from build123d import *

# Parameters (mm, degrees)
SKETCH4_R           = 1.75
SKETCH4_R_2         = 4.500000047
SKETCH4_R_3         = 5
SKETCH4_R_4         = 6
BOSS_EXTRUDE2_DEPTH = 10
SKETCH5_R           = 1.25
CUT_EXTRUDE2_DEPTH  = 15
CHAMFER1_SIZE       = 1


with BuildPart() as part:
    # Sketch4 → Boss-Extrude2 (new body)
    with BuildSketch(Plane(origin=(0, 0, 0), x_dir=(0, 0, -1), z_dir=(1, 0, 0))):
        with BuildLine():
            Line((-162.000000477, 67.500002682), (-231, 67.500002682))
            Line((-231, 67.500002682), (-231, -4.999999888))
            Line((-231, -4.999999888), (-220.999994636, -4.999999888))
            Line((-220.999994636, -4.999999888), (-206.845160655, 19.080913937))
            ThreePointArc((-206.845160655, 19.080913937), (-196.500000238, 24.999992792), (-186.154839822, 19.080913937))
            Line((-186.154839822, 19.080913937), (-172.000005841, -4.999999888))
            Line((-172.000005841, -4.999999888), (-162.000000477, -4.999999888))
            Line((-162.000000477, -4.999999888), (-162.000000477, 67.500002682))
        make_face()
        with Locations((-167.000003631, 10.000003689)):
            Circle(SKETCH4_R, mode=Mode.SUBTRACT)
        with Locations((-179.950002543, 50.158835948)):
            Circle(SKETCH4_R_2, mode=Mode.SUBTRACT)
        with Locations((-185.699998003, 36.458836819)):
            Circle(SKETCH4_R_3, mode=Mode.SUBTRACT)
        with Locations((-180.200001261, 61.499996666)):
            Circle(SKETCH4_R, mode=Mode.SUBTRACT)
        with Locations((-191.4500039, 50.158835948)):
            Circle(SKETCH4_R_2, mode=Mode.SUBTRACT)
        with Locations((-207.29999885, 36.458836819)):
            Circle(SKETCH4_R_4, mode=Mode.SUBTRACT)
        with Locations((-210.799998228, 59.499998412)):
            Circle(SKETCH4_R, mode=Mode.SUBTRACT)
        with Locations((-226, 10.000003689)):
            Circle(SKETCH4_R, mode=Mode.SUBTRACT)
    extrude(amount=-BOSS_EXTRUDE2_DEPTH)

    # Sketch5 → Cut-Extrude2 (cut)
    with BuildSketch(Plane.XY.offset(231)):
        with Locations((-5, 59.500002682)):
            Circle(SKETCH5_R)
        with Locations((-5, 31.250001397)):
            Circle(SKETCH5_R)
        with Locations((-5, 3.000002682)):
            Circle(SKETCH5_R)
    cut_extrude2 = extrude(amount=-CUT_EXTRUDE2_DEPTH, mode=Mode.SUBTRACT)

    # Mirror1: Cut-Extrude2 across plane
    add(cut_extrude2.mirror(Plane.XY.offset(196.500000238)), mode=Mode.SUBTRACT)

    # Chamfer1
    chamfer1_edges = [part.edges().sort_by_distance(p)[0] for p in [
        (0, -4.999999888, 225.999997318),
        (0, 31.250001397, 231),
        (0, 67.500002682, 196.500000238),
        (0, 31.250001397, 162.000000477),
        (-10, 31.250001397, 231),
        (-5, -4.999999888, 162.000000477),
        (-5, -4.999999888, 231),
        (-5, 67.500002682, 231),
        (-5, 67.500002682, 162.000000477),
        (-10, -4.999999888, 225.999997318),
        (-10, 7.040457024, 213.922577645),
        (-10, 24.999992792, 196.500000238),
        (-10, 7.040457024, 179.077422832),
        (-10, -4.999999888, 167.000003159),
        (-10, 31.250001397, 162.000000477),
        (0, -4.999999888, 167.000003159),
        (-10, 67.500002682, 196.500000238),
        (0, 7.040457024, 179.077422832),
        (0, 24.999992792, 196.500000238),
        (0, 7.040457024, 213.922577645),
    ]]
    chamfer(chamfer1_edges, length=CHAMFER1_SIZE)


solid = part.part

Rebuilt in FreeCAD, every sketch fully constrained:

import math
import FreeCAD as App
import Part
import Sketcher
Q = App.Units.Quantity


def edges_at(feature, points):
    """Names of the edges that pass closest to the given points."""
    edges = feature.Shape.Edges
    near = lambda p: min(range(len(edges)), key=lambda i: edges[i].distToShape(Part.Vertex(*p))[0])
    return sorted({f"Edge{near(p) + 1}" for p in points})

doc = App.newDocument("Part")
body = doc.addObject("PartDesign::Body", "Body")

# Sketch on YZ plane
sketch1 = body.newObject("Sketcher::SketchObject", "Sketch")
sketch1.AttachmentSupport = (doc.getObject("YZ_Plane"), [""])
sketch1.MapMode = "FlatFace"
sketch1.addGeometry(Part.LineSegment(App.Vector(67.500003, 162, 0), App.Vector(67.500003, 231, 0)), False)
sketch1.addGeometry(Part.LineSegment(App.Vector(67.500003, 231, 0), App.Vector(-5, 231, 0)), False)
sketch1.addGeometry(Part.LineSegment(App.Vector(-5, 231, 0), App.Vector(-5, 220.999995, 0)), False)
sketch1.addGeometry(Part.LineSegment(App.Vector(-5, 220.999995, 0), App.Vector(19.080914, 206.845161, 0)), False)
sketch1.addGeometry(Part.ArcOfCircle(Part.Circle(App.Vector(12.999997, 196.5, 0), App.Vector(0, 0, 1), 11.999995), math.radians(-59.552859), math.radians(59.552859)), False)
sketch1.addGeometry(Part.LineSegment(App.Vector(19.080914, 186.15484, 0), App.Vector(-5, 172.000006, 0)), False)
sketch1.addGeometry(Part.LineSegment(App.Vector(-5, 172.000006, 0), App.Vector(-5, 162, 0)), False)
sketch1.addGeometry(Part.LineSegment(App.Vector(-5, 162, 0), App.Vector(67.500003, 162, 0)), False)
sketch1.addGeometry(Part.Circle(App.Vector(10.000004, 226, 0), App.Vector(0, 0, 1), 1.75), False)
sketch1.addGeometry(Part.Circle(App.Vector(10.000004, 167.000004, 0), App.Vector(0, 0, 1), 1.75), False)
sketch1.addGeometry(Part.Circle(App.Vector(36.458837, 207.299999, 0), App.Vector(0, 0, 1), 6), False)
sketch1.addGeometry(Part.Circle(App.Vector(59.499998, 210.799998, 0), App.Vector(0, 0, 1), 1.75), False)
sketch1.addGeometry(Part.Circle(App.Vector(36.458837, 185.699998, 0), App.Vector(0, 0, 1), 5), False)
sketch1.addGeometry(Part.Circle(App.Vector(50.158836, 191.450004, 0), App.Vector(0, 0, 1), 4.5), False)
sketch1.addGeometry(Part.Circle(App.Vector(50.158836, 179.950003, 0), App.Vector(0, 0, 1), 4.5), False)
sketch1.addGeometry(Part.Circle(App.Vector(61.499997, 180.200001, 0), App.Vector(0, 0, 1), 1.75), False)
sketch1.addConstraint(Sketcher.Constraint("Coincident", 0, 2, 1, 1))
sketch1.addConstraint(Sketcher.Constraint("Coincident", 1, 2, 2, 1))
sketch1.addConstraint(Sketcher.Constraint("Coincident", 2, 2, 3, 1))
sketch1.addConstraint(Sketcher.Constraint("Tangent", 3, 2, 4, 2))
sketch1.addConstraint(Sketcher.Constraint("Tangent", 4, 1, 5, 1))
sketch1.addConstraint(Sketcher.Constraint("Coincident", 5, 2, 6, 1))
sketch1.addConstraint(Sketcher.Constraint("Coincident", 6, 2, 7, 1))
sketch1.addConstraint(Sketcher.Constraint("Coincident", 7, 2, 0, 1))
sketch1.addConstraint(Sketcher.Constraint("Vertical", 0))
sketch1.addConstraint(Sketcher.Constraint("Horizontal", 1))
sketch1.addConstraint(Sketcher.Constraint("Vertical", 2))
sketch1.addConstraint(Sketcher.Constraint("Vertical", 6))
sketch1.addConstraint(Sketcher.Constraint("Horizontal", 7))
sketch1.addConstraint(Sketcher.Constraint("Equal", 8, 9))
sketch1.addConstraint(Sketcher.Constraint("Equal", 9, 11))
sketch1.addConstraint(Sketcher.Constraint("Equal", 13, 14))
sketch1.addConstraint(Sketcher.Constraint("Equal", 11, 15))
sketch1.addConstraint(Sketcher.Constraint("Vertical", 8, 3, 9, 3))
sketch1.addConstraint(Sketcher.Constraint("Vertical", 10, 3, 12, 3))
sketch1.addConstraint(Sketcher.Constraint("Vertical", 13, 3, 14, 3))
sketch1.addConstraint(Sketcher.Constraint("Vertical", 3, 2, 4, 1))
sketch1.addConstraint(Sketcher.Constraint("Vertical", 2, 2, 5, 2))
sketch1.addConstraint(Sketcher.Constraint("Equal", 2, 6))
sketch1.addConstraint(Sketcher.Constraint("Diameter", 10, Q("12 mm")))
sketch1.addConstraint(Sketcher.Constraint("Diameter", 12, Q("10 mm")))
sketch1.addConstraint(Sketcher.Constraint("Diameter", 13, Q("9 mm")))
sketch1.addConstraint(Sketcher.Constraint("Diameter", 8, Q("3.5 mm")))
sketch1.addConstraint(Sketcher.Constraint("DistanceY", 0, 1, 0, 2, Q("69 mm")))
sketch1.addConstraint(Sketcher.Constraint("DistanceY", -1, 1, 8, 3, Q("226 mm")))
sketch1.addConstraint(Sketcher.Constraint("DistanceY", -1, 1, 0, 2, Q("231 mm")))
sketch1.addConstraint(Sketcher.Constraint("DistanceX", 1, 2, -1, 1, Q("5 mm")))
sketch1.addConstraint(Sketcher.Constraint("DistanceX", 11, 3, 15, 3, Q("1.999998 mm")))
sketch1.addConstraint(Sketcher.Constraint("DistanceY", -1, 1, 10, 3, Q("207.299999 mm")))
sketch1.addConstraint(Sketcher.Constraint("DistanceX", -1, 1, 11, 3, Q("59.499998 mm")))
sketch1.addConstraint(Sketcher.Constraint("DistanceY", -1, 1, 11, 3, Q("210.799998 mm")))
sketch1.addConstraint(Sketcher.Constraint("DistanceY", -1, 1, 12, 3, Q("185.699998 mm")))
sketch1.addConstraint(Sketcher.Constraint("DistanceY", -1, 1, 15, 3, Q("180.200001 mm")))
sketch1.addConstraint(Sketcher.Constraint("DistanceX", 4, 3, 11, 3, Q("46.500001 mm")))
sketch1.addConstraint(Sketcher.Constraint("DistanceX", 12, 3, 13, 3, Q("13.699999 mm")))
sketch1.addConstraint(Sketcher.Constraint("DistanceY", 14, 3, 13, 3, Q("11.500001 mm")))
sketch1.addConstraint(Sketcher.Constraint("DistanceY", 9, 3, 13, 3, Q("24.45 mm")))
sketch1.addConstraint(Sketcher.Constraint("DistanceY", 14, 3, 15, 3, Q("0.249999 mm")))
sketch1.addConstraint(Sketcher.Constraint("Radius", 4, Q("11.999995 mm")))
sketch1.addConstraint(Sketcher.Constraint("Distance", 3, Q("27.932951 mm")))
sketch1.addConstraint(Sketcher.Constraint("DistanceX", 1, 2, 1, 1, Q("72.500003 mm")))
sketch1.addConstraint(Sketcher.Constraint("DistanceX", 4, 3, 10, 3, Q("23.458839 mm")))
sketch1.addConstraint(Sketcher.Constraint("DistanceX", 8, 3, 3, 2, Q("9.08091 mm")))
pad1 = body.newObject("PartDesign::Pad", "Pad")
pad1.Profile = sketch1
pad1.Length = 10
pad1.Reversed = True

# Sketch on XY plane
sketch2 = body.newObject("Sketcher::SketchObject", "Sketch001")
sketch2.AttachmentSupport = (doc.getObject("XY_Plane"), [""])
sketch2.MapMode = "FlatFace"
sketch2.AttachmentOffset = App.Placement(App.Vector(0, 0, 231), App.Rotation())
sketch2.addGeometry(Part.Circle(App.Vector(-5, 59.500003, 0), App.Vector(0, 0, 1), 1.25), False)
sketch2.addGeometry(Part.Circle(App.Vector(-5, 31.250001, 0), App.Vector(0, 0, 1), 1.25), False)
sketch2.addGeometry(Part.Circle(App.Vector(-5, 3.000003, 0), App.Vector(0, 0, 1), 1.25), False)
sketch2.addConstraint(Sketcher.Constraint("Equal", 0, 1))
sketch2.addConstraint(Sketcher.Constraint("Equal", 1, 2))
sketch2.addConstraint(Sketcher.Constraint("Vertical", 0, 3, 1, 3))
sketch2.addConstraint(Sketcher.Constraint("Vertical", 1, 3, 2, 3))
sketch2.addConstraint(Sketcher.Constraint("Diameter", 0, Q("2.5 mm")))
sketch2.addConstraint(Sketcher.Constraint("DistanceX", 0, 3, -1, 1, Q("5 mm")))
sketch2.addConstraint(Sketcher.Constraint("DistanceY", 2, 3, 0, 3, Q("56.5 mm")))
sketch2.addConstraint(Sketcher.Constraint("DistanceY", -1, 1, 1, 3, Q("31.250001 mm")))
sketch2.addConstraint(Sketcher.Constraint("DistanceY", 1, 3, 0, 3, Q("28.250001 mm")))
pocket1 = body.newObject("PartDesign::Pocket", "Pocket")
pocket1.Profile = sketch2
pocket1.Length = 15
doc.recompute()

datumplane = body.newObject("PartDesign::Plane", "DatumPlane")
datumplane.AttachmentSupport = (doc.getObject("XY_Plane"), [""])
datumplane.MapMode = "FlatFace"
datumplane.AttachmentOffset = App.Placement(App.Vector(0, 0, 196.5), App.Rotation())
mirrored = body.newObject("PartDesign::Mirrored", "Mirrored")
mirrored.Originals = [pocket1]
mirrored.MirrorPlane = (datumplane, [""])
body.Tip = mirrored
doc.recompute()

chamfer = body.newObject("PartDesign::Chamfer", "Chamfer")
chamfer.Base = (mirrored, edges_at(mirrored, [
    (0, -5, 226),
    (0, 31.25, 231),
    (0, 67.5, 196.5),
    (0, 31.25, 162),
    (-10, 31.25, 231),
    (-5, -5, 162),
    (-5, -5, 231),
    (-5, 67.5, 231),
    (-5, 67.5, 162),
    (-10, -5, 226),
    (-10, 7.04, 213.923),
    (-10, 25, 196.5),
    (-10, 7.04, 179.077),
    (-10, -5, 167),
    (-10, 31.25, 162),
    (0, -5, 167),
    (-10, 67.5, 196.5),
    (0, 7.04, 179.077),
    (0, 25, 196.5),
    (0, 7.04, 213.923),
]))
chamfer.Size = 1

doc.recompute()
